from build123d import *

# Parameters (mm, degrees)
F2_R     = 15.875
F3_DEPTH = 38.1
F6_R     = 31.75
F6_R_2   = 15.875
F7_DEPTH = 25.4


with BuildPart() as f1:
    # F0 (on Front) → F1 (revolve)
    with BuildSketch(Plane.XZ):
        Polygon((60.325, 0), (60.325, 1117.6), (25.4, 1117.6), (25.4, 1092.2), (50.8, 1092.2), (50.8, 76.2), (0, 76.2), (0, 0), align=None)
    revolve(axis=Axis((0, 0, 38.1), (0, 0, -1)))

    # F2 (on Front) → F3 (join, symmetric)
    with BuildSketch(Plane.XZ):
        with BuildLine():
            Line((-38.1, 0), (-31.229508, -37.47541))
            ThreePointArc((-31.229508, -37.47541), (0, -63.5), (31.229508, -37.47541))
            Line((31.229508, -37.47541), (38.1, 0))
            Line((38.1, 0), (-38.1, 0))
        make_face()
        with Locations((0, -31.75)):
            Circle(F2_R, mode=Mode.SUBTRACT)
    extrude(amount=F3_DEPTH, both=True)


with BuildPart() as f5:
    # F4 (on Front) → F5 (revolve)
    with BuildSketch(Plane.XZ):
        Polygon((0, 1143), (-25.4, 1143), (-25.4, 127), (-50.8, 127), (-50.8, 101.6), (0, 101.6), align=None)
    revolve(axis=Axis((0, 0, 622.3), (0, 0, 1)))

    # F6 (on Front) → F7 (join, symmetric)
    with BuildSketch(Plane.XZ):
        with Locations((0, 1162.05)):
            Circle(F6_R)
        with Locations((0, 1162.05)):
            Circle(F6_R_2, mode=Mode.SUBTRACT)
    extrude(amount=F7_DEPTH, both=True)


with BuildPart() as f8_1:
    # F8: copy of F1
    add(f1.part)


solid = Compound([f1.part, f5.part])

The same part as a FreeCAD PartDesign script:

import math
import FreeCAD as App
import Part
import Sketcher
from FreeCAD import Vector
Q = App.Units.Quantity


def add_polygon(sketch, points):
    """Adds a closed chain of lines whose ends are joined by coincident constraints."""
    first, n = sketch.GeometryCount, len(points)
    for a, b in zip(points, points[1:] + points[:1]):
        sketch.addGeometry(Part.LineSegment(App.Vector(*a, 0), App.Vector(*b, 0)), False)
    for i in range(n):
        sketch.addConstraint(Sketcher.Constraint("Coincident", first + i, 2, first + (i + 1) % n, 1))

doc = App.newDocument("Part")
body = doc.addObject("PartDesign::Body", "Body")

sketch1 = body.newObject("Sketcher::SketchObject", "Sketch")
sketch1.AttachmentSupport = (doc.getObject("XZ_Plane"), [""])
sketch1.MapMode = "FlatFace"
add_polygon(sketch1, [(60, 0), (60, 1118), (25, 1118), (25, 1092), (51, 1092), (51, 76), (0, 76), (0, 0)])
sketch1.addConstraint([
    Sketcher.Constraint("Vertical", 0),
    Sketcher.Constraint("Horizontal", 1),
    Sketcher.Constraint("Vertical", 2),
    Sketcher.Constraint("Horizontal", 3),
    Sketcher.Constraint("Vertical", 4),
    Sketcher.Constraint("Horizontal", 5),
    Sketcher.Constraint("Vertical", 6),
    Sketcher.Constraint("Horizontal", 7),
    Sketcher.Constraint("Coincident", 6, 2, -1, 1),
    Sketcher.Constraint("Equal", 3, 2),
    Sketcher.Constraint("DistanceX", 3, 1, 3, 2, Q("1 in")),
    Sketcher.Constraint("DistanceX", 5, 2, 5, 1, Q("2 in")),
    Sketcher.Constraint("DistanceY", 0, 1, 0, 2, Q("44 in")),
    Sketcher.Constraint("DistanceY", 4, 2, 4, 1, Q("40 in")),
    Sketcher.Constraint("DistanceX", 1, 2, 1, 1, Q("1.375 in")),
])
revolution = body.newObject("PartDesign::Revolution", "Revolution")
revolution.Profile = sketch1
revolution.ReferenceAxis = (sketch1, ["V_Axis"])
revolution.Angle = 360

sketch2 = body.newObject("Sketcher::SketchObject", "Sketch001")
sketch2.AttachmentSupport = (doc.getObject("XZ_Plane"), [""])
sketch2.MapMode = "FlatFace"
sketch2.addGeometry([
    Part.LineSegment(Vector(-38, 0, 0), Vector(-31, -37, 0)),
    Part.ArcOfCircle(Part.Circle(Vector(0, -32, 0), Vector(0, 0, 1), 32), math.radians(-170), math.radians(-10)),
    Part.LineSegment(Vector(31, -37, 0), Vector(38, 0, 0)),
    Part.LineSegment(Vector(38, 0, 0), Vector(-38, 0, 0)),
    Part.Circle(Vector(0, -32, 0), Vector(0, 0, 1), 16),
], False)
sketch2.addConstraint([
    Sketcher.Constraint("Tangent", 0, 2, 1, 1),
    Sketcher.Constraint("Tangent", 1, 2, 2, 1),
    Sketcher.Constraint("Coincident", 2, 2, 3, 1),
    Sketcher.Constraint("Coincident", 3, 2, 0, 1),
    Sketcher.Constraint("Horizontal", 3),
    Sketcher.Constraint("Coincident", 4, 3, 1, 3),
    Sketcher.Constraint("Symmetric", 2, 2, 3, 2, -1, 1),
    Sketcher.Constraint("PointOnObject", 1, 3, -2),
    Sketcher.Constraint("Diameter", 4, Q("1.25 in")),
    Sketcher.Constraint("DistanceX", 3, 2, 3, 1, Q("3 in")),
    Sketcher.Constraint("Radius", 1, Q("1.25 in")),
    Sketcher.Constraint("Distance", 0, Q("1.5 in")),
])
pad1 = body.newObject("PartDesign::Pad", "Pad")
pad1.Profile = sketch2
pad1.Length = Q("3 in")
pad1.Midplane = True
body2 = doc.addObject("PartDesign::Body", "Body001")

sketch3 = body2.newObject("Sketcher::SketchObject", "Sketch002")
sketch3.AttachmentSupport = (doc.getObject("XZ_Plane001"), [""])
sketch3.MapMode = "FlatFace"
add_polygon(sketch3, [(0, 1143), (-25, 1143), (-25, 127), (-51, 127), (-51, 102), (0, 102)])
sketch3.addConstraint([
    Sketcher.Constraint("Horizontal", 0),
    Sketcher.Constraint("Vertical", 1),
    Sketcher.Constraint("Horizontal", 2),
    Sketcher.Constraint("Vertical", 3),
    Sketcher.Constraint("Horizontal", 4),
    Sketcher.Constraint("Vertical", 5),
    Sketcher.Constraint("PointOnObject", 4, 2, -2),
    Sketcher.Constraint("Equal", 0, 2),
    Sketcher.Constraint("Equal", 2, 3),
    Sketcher.Constraint("DistanceX", 0, 2, 0, 1, Q("1 in")),
    Sketcher.Constraint("DistanceY", 1, 2, 1, 1, Q("40 in")),
    Sketcher.Constraint("DistanceY", -1, 1, 0, 2, Q("45 in")),
])
revolution2 = body2.newObject("PartDesign::Revolution", "Revolution001")
revolution2.Profile = sketch3
revolution2.ReferenceAxis = (sketch3, ["V_Axis"])
revolution2.Angle = 360

sketch4 = body2.newObject("Sketcher::SketchObject", "Sketch003")
sketch4.AttachmentSupport = (doc.getObject("XZ_Plane001"), [""])
sketch4.MapMode = "FlatFace"
sketch4.addGeometry([
    Part.Circle(Vector(0, 1162, 0), Vector(0, 0, 1), 32),
    Part.Circle(Vector(0, 1162, 0), Vector(0, 0, 1), 16),
], False)
sketch4.addConstraint([
    Sketcher.Constraint("Coincident", 1, 3, 0, 3),
    Sketcher.Constraint("PointOnObject", 0, 3, -2),
    Sketcher.Constraint("Diameter", 0, Q("2.5 in")),
    Sketcher.Constraint("Diameter", 1, Q("1.25 in")),
    Sketcher.Constraint("DistanceY", -1, 1, 0, 3, Q("45.75 in")),
])
pad2 = body2.newObject("PartDesign::Pad", "Pad001")
pad2.Profile = sketch4
pad2.Length = Q("2 in")
pad2.Midplane = True
body3 = doc.addObject("PartDesign::Body", "Body002")
doc.recompute()

body3.BaseFeature = body
doc.recompute()
body.Visibility = False

doc.recompute()
